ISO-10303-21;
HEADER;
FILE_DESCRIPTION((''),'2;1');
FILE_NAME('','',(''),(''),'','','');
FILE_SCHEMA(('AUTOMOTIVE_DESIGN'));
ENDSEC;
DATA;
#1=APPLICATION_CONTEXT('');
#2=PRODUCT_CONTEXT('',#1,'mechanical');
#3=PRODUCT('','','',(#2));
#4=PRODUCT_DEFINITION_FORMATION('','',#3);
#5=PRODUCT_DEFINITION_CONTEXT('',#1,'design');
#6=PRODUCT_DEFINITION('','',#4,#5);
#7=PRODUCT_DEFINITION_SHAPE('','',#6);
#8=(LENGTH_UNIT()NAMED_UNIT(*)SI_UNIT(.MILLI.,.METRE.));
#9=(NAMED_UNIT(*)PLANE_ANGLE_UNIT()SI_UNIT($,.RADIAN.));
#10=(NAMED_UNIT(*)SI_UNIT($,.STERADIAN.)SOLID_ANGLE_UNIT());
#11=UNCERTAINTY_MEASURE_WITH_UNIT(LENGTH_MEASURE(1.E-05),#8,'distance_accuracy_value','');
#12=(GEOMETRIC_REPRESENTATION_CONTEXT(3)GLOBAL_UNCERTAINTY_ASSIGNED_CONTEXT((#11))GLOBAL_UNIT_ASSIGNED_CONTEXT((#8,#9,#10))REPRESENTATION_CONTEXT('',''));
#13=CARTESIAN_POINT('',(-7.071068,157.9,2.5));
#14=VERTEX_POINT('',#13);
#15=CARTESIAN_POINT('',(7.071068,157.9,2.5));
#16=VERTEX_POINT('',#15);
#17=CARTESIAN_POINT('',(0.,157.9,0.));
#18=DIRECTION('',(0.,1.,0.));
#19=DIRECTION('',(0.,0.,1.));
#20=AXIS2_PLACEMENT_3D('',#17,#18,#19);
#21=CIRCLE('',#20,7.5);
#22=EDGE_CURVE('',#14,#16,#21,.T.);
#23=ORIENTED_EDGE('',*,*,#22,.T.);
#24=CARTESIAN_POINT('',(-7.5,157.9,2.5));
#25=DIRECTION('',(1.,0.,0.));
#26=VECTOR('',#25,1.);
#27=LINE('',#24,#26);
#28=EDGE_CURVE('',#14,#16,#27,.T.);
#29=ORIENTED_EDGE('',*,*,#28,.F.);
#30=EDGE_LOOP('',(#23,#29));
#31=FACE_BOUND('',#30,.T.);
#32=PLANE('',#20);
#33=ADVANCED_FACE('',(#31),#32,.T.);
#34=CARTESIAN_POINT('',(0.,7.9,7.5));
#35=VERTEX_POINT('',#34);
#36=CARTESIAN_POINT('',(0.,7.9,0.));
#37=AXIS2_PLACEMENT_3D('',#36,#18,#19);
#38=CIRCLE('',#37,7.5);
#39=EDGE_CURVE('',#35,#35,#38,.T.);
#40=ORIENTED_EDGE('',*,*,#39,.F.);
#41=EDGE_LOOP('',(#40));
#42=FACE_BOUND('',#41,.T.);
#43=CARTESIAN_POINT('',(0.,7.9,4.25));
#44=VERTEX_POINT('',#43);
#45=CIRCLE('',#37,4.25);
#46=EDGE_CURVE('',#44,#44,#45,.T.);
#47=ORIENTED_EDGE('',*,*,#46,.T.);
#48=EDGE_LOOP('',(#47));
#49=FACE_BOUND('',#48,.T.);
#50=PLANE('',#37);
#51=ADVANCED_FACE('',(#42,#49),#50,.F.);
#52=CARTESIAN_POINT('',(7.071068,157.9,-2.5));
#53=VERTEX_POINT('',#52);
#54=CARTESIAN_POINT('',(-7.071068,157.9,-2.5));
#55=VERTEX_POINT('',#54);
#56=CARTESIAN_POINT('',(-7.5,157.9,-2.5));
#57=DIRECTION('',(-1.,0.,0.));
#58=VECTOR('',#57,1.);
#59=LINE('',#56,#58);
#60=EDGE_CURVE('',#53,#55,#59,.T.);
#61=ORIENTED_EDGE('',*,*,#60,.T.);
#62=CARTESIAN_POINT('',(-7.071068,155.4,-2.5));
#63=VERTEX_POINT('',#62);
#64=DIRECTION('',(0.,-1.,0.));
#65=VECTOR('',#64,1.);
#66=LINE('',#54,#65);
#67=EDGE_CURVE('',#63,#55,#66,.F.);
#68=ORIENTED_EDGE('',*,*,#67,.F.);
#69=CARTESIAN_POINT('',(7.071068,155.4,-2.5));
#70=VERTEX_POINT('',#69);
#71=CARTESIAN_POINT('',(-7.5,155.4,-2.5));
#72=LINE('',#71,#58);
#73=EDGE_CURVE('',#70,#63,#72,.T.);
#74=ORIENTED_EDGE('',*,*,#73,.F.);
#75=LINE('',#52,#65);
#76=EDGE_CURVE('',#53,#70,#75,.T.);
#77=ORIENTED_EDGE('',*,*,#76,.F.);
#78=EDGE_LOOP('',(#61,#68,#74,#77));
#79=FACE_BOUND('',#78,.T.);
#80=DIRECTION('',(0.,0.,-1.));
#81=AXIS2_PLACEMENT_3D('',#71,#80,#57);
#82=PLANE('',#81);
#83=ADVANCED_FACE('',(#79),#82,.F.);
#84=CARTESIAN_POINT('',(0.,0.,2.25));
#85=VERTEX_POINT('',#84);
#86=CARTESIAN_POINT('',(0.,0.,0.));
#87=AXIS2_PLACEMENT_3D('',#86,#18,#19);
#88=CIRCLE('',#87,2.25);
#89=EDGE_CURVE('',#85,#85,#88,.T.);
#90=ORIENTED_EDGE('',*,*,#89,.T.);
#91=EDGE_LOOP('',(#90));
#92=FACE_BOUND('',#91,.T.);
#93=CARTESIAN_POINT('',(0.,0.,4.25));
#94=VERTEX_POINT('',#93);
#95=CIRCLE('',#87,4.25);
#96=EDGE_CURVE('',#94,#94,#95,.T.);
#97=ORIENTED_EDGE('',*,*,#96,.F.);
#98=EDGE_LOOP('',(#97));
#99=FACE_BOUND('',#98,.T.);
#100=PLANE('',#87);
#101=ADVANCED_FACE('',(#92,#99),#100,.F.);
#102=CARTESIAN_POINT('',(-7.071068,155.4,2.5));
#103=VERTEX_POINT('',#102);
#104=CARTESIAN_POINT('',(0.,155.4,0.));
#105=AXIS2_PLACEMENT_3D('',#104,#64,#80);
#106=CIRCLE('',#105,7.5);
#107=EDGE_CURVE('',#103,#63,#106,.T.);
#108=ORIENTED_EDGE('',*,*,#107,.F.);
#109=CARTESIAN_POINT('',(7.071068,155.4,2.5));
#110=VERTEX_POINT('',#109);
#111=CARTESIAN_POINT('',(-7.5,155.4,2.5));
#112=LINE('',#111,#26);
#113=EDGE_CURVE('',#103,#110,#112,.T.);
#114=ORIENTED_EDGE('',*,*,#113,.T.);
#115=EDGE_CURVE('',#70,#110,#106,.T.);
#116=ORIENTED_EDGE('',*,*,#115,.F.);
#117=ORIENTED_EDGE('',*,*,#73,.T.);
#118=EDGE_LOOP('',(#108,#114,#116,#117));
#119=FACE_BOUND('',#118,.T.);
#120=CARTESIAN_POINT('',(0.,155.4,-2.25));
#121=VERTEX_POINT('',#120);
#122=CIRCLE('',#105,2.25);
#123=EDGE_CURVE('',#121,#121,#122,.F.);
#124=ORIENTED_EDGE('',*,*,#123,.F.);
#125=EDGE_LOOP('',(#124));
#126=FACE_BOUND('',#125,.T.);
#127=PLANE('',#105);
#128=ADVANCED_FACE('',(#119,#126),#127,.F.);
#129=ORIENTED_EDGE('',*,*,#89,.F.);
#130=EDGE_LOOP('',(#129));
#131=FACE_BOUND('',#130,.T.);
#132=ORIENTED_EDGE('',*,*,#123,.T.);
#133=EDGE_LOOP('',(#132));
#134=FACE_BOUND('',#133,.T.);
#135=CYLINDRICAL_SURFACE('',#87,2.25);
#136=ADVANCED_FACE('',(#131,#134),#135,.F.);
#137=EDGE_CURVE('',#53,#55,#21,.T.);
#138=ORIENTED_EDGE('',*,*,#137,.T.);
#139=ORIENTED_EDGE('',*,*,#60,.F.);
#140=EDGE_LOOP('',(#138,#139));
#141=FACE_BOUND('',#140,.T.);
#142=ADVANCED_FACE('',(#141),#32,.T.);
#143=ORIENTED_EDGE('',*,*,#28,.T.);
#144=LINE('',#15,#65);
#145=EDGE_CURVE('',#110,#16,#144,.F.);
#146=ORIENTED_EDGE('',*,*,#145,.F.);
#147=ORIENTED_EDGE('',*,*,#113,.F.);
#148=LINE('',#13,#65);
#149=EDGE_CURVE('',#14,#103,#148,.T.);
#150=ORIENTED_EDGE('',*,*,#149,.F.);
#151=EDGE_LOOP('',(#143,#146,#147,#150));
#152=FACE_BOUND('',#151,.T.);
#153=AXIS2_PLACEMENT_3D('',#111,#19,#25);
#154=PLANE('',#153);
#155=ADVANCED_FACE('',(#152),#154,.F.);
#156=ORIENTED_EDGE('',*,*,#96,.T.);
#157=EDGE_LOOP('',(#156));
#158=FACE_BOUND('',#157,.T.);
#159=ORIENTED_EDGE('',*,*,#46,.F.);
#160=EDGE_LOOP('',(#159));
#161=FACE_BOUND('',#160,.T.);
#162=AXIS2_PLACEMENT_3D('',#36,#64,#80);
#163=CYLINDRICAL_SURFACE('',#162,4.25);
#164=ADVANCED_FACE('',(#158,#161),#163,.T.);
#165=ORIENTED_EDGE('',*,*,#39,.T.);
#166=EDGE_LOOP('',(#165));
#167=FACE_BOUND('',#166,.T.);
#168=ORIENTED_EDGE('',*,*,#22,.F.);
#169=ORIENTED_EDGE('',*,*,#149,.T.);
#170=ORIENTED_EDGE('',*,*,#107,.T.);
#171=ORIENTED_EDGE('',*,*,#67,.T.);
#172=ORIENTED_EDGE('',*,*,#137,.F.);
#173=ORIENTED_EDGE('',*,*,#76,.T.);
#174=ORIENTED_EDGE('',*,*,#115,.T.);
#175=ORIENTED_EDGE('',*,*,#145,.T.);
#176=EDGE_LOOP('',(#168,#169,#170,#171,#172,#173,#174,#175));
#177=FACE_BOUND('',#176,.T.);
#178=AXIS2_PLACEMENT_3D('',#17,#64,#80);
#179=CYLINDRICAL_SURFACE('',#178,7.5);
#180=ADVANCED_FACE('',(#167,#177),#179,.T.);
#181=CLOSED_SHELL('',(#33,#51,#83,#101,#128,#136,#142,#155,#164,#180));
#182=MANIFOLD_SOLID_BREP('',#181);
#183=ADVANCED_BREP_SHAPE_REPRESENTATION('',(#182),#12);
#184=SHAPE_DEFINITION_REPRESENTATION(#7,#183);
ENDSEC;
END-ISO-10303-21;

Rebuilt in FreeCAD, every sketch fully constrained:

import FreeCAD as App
import Part
import Sketcher
from FreeCAD import Vector


def add_polygon(sketch, points):
    """Adds a closed chain of lines whose ends are joined by coincident constraints."""
    first, n = sketch.GeometryCount, len(points)
    for a, b in zip(points, points[1:] + points[:1]):
        sketch.addGeometry(Part.LineSegment(App.Vector(*a, 0), App.Vector(*b, 0)), False)
    for i in range(n):
        sketch.addConstraint(Sketcher.Constraint("Coincident", first + i, 2, first + (i + 1) % n, 1))

doc = App.newDocument("Part")
params = doc.addObject("Spreadsheet::Sheet", "Params")
for row, (alias, value) in enumerate([
    ("sketch1_diameter", "8.5 mm"),
    ("pad1_length", "7.9 mm"),
    ("sketch2_diameter", "15 mm"),
    ("pad2_length", "150 mm"),
    ("sketch3_diameter", "4.5 mm"),
    ("sketch4_width", "15 mm"),
    ("sketch4_height", "5 mm"),
    ("pocket2_length", "2.5 mm"),
], start=1):
    params.set(f"A{row}", alias)
    params.set(f"B{row}", "=" + value)
    params.setAlias(f"B{row}", alias)

body = doc.addObject("PartDesign::Body", "Body")

# Sketch on XZ plane
sketch1 = body.newObject("Sketcher::SketchObject", "Sketch")
sketch1.AttachmentSupport = (doc.getObject("XZ_Plane"), [""])
sketch1.MapMode = "FlatFace"
sketch1.addGeometry(Part.Circle(Vector(0, 0, 0), Vector(0, 0, 1), 4.25), False)
sketch1.addConstraint([
    Sketcher.Constraint("Coincident", 0, 3, -1, 1),
    Sketcher.Constraint("Diameter", 0, 8.5),
])
sketch1.setExpression("Constraints[1]", "Params.sketch1_diameter")
pad1 = body.newObject("PartDesign::Pad", "Pad")
pad1.Profile = sketch1
pad1.setExpression("Length", "Params.pad1_length")
pad1.Reversed = True

# Sketch on XZ plane
sketch2 = body.newObject("Sketcher::SketchObject", "Sketch001")
sketch2.AttachmentSupport = (doc.getObject("XZ_Plane"), [""])
sketch2.MapMode = "FlatFace"
sketch2.AttachmentOffset = App.Placement(Vector(0, 0, -7.9), App.Rotation())
sketch2.addGeometry(Part.Circle(Vector(0, 0, 0), Vector(0, 0, 1), 7.5), False)
sketch2.addConstraint([
    Sketcher.Constraint("Coincident", 0, 3, -1, 1),
    Sketcher.Constraint("Diameter", 0, 15.0),
])
sketch2.setExpression("Constraints[1]", "Params.sketch2_diameter")
pad2 = body.newObject("PartDesign::Pad", "Pad001")
pad2.Profile = sketch2
pad2.setExpression("Length", "Params.pad2_length")
pad2.Reversed = True

# Sketch on XZ plane
sketch3 = body.newObject("Sketcher::SketchObject", "Sketch002")
sketch3.AttachmentSupport = (doc.getObject("XZ_Plane"), [""])
sketch3.MapMode = "FlatFace"
sketch3.AttachmentOffset = App.Placement(Vector(0, 0, -157.9), App.Rotation())
sketch3.addGeometry(Part.Circle(Vector(0, 0, 0), Vector(0, 0, 1), 2.25), False)
sketch3.addConstraint([
    Sketcher.Constraint("Coincident", 0, 3, -1, 1),
    Sketcher.Constraint("Diameter", 0, 4.5),
])
sketch3.setExpression("Constraints[1]", "Params.sketch3_diameter")
pocket1 = body.newObject("PartDesign::Pocket", "Pocket")
pocket1.Profile = sketch3
pocket1.Type = "ThroughAll"
pocket1.Reversed = True

# Sketch on XZ plane
sketch4 = body.newObject("Sketcher::SketchObject", "Sketch003")
sketch4.AttachmentSupport = (doc.getObject("XZ_Plane"), [""])
sketch4.MapMode = "FlatFace"
sketch4.AttachmentOffset = App.Placement(Vector(0, 0, -157.9), App.Rotation())
add_polygon(sketch4, [(-7.5, -2.5), (-7.5, 2.5), (7.5, 2.5), (7.5, -2.5)])  # lines 0-3
sketch4.addConstraint([
    Sketcher.Constraint("Vertical", 0),
    Sketcher.Constraint("Horizontal", 1),
    Sketcher.Constraint("Vertical", 2),
    Sketcher.Constraint("Horizontal", 3),
    Sketcher.Constraint("Symmetric", 0, 2, 2, 2, -1, 1),
    Sketcher.Constraint("DistanceX", 1, 1, 1, 2, 15.0),
    Sketcher.Constraint("DistanceY", 0, 1, 0, 2, 5.0),
])
sketch4.setExpression("Constraints[9]", "Params.sketch4_width")
sketch4.setExpression("Constraints[10]", "Params.sketch4_height")
pocket2 = body.newObject("PartDesign::Pocket", "Pocket001")
pocket2.Profile = sketch4
pocket2.setExpression("Length", "Params.pocket2_length")
pocket2.Reversed = True

doc.recompute()
